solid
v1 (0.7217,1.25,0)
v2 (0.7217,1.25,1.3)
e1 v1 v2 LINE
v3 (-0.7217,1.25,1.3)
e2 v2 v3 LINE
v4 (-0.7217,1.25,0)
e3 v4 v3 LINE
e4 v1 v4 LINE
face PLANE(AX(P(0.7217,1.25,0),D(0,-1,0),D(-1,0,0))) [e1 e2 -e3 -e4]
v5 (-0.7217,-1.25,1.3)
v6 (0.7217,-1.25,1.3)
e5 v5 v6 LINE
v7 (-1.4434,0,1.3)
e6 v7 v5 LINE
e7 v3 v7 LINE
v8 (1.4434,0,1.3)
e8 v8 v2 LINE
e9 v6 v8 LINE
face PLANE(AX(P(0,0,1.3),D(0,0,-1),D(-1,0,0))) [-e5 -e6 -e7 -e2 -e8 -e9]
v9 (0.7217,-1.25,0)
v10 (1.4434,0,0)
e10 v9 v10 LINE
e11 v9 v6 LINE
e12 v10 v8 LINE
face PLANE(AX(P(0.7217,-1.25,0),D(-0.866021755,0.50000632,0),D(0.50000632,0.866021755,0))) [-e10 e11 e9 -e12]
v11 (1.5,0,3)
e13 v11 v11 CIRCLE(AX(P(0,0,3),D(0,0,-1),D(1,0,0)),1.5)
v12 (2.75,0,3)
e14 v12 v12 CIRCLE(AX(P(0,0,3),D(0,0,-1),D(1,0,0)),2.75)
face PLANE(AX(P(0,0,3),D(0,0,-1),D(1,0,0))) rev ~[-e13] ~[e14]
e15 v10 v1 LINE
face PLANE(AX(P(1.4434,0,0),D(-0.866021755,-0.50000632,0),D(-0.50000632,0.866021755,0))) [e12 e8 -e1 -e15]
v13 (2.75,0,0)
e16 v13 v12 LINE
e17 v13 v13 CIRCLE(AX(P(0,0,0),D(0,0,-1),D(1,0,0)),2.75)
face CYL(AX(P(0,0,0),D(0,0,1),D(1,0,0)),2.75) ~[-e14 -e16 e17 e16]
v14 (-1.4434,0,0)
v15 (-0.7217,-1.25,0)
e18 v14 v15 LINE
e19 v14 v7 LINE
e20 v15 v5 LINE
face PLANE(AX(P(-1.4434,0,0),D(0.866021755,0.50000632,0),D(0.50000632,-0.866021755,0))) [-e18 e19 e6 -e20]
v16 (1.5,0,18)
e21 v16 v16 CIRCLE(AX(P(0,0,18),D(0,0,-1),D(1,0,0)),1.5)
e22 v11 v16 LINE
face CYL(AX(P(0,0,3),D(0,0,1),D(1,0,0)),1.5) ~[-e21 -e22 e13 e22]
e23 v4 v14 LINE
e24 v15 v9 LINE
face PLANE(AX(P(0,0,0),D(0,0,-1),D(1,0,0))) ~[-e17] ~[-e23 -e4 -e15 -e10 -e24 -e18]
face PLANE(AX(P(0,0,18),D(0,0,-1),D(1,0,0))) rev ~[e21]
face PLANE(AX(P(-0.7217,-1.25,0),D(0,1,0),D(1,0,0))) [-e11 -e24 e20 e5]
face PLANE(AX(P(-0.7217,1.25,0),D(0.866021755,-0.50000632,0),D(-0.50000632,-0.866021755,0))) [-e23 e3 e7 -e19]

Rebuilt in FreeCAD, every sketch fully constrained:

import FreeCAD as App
import Part
import Sketcher
from FreeCAD import Vector
Q = App.Units.Quantity


def add_polygon(sketch, points):
    """Adds a closed chain of lines whose ends are joined by coincident constraints."""
    first, n = sketch.GeometryCount, len(points)
    for a, b in zip(points, points[1:] + points[:1]):
        sketch.addGeometry(Part.LineSegment(App.Vector(*a, 0), App.Vector(*b, 0)), False)
    for i in range(n):
        sketch.addConstraint(Sketcher.Constraint("Coincident", first + i, 2, first + (i + 1) % n, 1))

doc = App.newDocument("Part")
body = doc.addObject("PartDesign::Body", "Body")

sketch1 = body.newObject("Sketcher::SketchObject", "Sketch")
sketch1.AttachmentSupport = (doc.getObject("XZ_Plane"), [""])
sketch1.MapMode = "FlatFace"
add_polygon(sketch1, [(2.75, 0), (0, 0), (0, 18), (1.5, 18), (1.5, 3), (2.75, 3)])
sketch1.addConstraint([
    Sketcher.Constraint("Horizontal", 0),
    Sketcher.Constraint("Vertical", 1),
    Sketcher.Constraint("Horizontal", 2),
    Sketcher.Constraint("Vertical", 3),
    Sketcher.Constraint("Horizontal", 4),
    Sketcher.Constraint("Vertical", 5),
    Sketcher.Constraint("Coincident", 0, 2, -1, 1),
    Sketcher.Constraint("DistanceY", 3, 2, 3, 1, 15.0),
    Sketcher.Constraint("DistanceY", 5, 2, 5, 1, 3.0),
    Sketcher.Constraint("DistanceX", 2, 1, 2, 2, 1.5),
    Sketcher.Constraint("DistanceX", 0, 2, 0, 1, 2.75),
])
revolution = body.newObject("PartDesign::Revolution", "Revolution")
revolution.Profile = sketch1
revolution.ReferenceAxis = (sketch1, ["V_Axis"])
revolution.Angle = 360

sketch2 = body.newObject("Sketcher::SketchObject", "Sketch001")
sketch2.AttachmentSupport = (doc.getObject("XY_Plane"), [""])
sketch2.MapMode = "FlatFace"
add_polygon(sketch2, [(-1.4434, 0), (-0.7217, 1.25), (0.7217, 1.25), (1.4434, 0), (0.7217, -1.25), (-0.7217, -1.25)])
sketch2.addConstraint([
    Sketcher.Constraint("Horizontal", 1),
    Sketcher.Constraint("Horizontal", 4),
    Sketcher.Constraint("Symmetric", 0, 2, 3, 2, -1, 1),
    Sketcher.Constraint("Symmetric", 2, 2, 5, 2, -1, 1),
    Sketcher.Constraint("PointOnObject", 2, 2, -1),
    Sketcher.Constraint("Parallel", 2, 5),
    Sketcher.Constraint("Vertical", 1, 2, 3, 2),
    Sketcher.Constraint("DistanceY", 3, 2, 1, 2, 2.5),
    Sketcher.Constraint("Angle", 0, Q("59.9996 deg")),
    Sketcher.Constraint("DistanceX", 1, 1, 1, 2, 1.4434),
])
pocket1 = body.newObject("PartDesign::Pocket", "Pocket")
pocket1.Profile = sketch2
pocket1.Length = 1.3
pocket1.Reversed = True

doc.recompute()
